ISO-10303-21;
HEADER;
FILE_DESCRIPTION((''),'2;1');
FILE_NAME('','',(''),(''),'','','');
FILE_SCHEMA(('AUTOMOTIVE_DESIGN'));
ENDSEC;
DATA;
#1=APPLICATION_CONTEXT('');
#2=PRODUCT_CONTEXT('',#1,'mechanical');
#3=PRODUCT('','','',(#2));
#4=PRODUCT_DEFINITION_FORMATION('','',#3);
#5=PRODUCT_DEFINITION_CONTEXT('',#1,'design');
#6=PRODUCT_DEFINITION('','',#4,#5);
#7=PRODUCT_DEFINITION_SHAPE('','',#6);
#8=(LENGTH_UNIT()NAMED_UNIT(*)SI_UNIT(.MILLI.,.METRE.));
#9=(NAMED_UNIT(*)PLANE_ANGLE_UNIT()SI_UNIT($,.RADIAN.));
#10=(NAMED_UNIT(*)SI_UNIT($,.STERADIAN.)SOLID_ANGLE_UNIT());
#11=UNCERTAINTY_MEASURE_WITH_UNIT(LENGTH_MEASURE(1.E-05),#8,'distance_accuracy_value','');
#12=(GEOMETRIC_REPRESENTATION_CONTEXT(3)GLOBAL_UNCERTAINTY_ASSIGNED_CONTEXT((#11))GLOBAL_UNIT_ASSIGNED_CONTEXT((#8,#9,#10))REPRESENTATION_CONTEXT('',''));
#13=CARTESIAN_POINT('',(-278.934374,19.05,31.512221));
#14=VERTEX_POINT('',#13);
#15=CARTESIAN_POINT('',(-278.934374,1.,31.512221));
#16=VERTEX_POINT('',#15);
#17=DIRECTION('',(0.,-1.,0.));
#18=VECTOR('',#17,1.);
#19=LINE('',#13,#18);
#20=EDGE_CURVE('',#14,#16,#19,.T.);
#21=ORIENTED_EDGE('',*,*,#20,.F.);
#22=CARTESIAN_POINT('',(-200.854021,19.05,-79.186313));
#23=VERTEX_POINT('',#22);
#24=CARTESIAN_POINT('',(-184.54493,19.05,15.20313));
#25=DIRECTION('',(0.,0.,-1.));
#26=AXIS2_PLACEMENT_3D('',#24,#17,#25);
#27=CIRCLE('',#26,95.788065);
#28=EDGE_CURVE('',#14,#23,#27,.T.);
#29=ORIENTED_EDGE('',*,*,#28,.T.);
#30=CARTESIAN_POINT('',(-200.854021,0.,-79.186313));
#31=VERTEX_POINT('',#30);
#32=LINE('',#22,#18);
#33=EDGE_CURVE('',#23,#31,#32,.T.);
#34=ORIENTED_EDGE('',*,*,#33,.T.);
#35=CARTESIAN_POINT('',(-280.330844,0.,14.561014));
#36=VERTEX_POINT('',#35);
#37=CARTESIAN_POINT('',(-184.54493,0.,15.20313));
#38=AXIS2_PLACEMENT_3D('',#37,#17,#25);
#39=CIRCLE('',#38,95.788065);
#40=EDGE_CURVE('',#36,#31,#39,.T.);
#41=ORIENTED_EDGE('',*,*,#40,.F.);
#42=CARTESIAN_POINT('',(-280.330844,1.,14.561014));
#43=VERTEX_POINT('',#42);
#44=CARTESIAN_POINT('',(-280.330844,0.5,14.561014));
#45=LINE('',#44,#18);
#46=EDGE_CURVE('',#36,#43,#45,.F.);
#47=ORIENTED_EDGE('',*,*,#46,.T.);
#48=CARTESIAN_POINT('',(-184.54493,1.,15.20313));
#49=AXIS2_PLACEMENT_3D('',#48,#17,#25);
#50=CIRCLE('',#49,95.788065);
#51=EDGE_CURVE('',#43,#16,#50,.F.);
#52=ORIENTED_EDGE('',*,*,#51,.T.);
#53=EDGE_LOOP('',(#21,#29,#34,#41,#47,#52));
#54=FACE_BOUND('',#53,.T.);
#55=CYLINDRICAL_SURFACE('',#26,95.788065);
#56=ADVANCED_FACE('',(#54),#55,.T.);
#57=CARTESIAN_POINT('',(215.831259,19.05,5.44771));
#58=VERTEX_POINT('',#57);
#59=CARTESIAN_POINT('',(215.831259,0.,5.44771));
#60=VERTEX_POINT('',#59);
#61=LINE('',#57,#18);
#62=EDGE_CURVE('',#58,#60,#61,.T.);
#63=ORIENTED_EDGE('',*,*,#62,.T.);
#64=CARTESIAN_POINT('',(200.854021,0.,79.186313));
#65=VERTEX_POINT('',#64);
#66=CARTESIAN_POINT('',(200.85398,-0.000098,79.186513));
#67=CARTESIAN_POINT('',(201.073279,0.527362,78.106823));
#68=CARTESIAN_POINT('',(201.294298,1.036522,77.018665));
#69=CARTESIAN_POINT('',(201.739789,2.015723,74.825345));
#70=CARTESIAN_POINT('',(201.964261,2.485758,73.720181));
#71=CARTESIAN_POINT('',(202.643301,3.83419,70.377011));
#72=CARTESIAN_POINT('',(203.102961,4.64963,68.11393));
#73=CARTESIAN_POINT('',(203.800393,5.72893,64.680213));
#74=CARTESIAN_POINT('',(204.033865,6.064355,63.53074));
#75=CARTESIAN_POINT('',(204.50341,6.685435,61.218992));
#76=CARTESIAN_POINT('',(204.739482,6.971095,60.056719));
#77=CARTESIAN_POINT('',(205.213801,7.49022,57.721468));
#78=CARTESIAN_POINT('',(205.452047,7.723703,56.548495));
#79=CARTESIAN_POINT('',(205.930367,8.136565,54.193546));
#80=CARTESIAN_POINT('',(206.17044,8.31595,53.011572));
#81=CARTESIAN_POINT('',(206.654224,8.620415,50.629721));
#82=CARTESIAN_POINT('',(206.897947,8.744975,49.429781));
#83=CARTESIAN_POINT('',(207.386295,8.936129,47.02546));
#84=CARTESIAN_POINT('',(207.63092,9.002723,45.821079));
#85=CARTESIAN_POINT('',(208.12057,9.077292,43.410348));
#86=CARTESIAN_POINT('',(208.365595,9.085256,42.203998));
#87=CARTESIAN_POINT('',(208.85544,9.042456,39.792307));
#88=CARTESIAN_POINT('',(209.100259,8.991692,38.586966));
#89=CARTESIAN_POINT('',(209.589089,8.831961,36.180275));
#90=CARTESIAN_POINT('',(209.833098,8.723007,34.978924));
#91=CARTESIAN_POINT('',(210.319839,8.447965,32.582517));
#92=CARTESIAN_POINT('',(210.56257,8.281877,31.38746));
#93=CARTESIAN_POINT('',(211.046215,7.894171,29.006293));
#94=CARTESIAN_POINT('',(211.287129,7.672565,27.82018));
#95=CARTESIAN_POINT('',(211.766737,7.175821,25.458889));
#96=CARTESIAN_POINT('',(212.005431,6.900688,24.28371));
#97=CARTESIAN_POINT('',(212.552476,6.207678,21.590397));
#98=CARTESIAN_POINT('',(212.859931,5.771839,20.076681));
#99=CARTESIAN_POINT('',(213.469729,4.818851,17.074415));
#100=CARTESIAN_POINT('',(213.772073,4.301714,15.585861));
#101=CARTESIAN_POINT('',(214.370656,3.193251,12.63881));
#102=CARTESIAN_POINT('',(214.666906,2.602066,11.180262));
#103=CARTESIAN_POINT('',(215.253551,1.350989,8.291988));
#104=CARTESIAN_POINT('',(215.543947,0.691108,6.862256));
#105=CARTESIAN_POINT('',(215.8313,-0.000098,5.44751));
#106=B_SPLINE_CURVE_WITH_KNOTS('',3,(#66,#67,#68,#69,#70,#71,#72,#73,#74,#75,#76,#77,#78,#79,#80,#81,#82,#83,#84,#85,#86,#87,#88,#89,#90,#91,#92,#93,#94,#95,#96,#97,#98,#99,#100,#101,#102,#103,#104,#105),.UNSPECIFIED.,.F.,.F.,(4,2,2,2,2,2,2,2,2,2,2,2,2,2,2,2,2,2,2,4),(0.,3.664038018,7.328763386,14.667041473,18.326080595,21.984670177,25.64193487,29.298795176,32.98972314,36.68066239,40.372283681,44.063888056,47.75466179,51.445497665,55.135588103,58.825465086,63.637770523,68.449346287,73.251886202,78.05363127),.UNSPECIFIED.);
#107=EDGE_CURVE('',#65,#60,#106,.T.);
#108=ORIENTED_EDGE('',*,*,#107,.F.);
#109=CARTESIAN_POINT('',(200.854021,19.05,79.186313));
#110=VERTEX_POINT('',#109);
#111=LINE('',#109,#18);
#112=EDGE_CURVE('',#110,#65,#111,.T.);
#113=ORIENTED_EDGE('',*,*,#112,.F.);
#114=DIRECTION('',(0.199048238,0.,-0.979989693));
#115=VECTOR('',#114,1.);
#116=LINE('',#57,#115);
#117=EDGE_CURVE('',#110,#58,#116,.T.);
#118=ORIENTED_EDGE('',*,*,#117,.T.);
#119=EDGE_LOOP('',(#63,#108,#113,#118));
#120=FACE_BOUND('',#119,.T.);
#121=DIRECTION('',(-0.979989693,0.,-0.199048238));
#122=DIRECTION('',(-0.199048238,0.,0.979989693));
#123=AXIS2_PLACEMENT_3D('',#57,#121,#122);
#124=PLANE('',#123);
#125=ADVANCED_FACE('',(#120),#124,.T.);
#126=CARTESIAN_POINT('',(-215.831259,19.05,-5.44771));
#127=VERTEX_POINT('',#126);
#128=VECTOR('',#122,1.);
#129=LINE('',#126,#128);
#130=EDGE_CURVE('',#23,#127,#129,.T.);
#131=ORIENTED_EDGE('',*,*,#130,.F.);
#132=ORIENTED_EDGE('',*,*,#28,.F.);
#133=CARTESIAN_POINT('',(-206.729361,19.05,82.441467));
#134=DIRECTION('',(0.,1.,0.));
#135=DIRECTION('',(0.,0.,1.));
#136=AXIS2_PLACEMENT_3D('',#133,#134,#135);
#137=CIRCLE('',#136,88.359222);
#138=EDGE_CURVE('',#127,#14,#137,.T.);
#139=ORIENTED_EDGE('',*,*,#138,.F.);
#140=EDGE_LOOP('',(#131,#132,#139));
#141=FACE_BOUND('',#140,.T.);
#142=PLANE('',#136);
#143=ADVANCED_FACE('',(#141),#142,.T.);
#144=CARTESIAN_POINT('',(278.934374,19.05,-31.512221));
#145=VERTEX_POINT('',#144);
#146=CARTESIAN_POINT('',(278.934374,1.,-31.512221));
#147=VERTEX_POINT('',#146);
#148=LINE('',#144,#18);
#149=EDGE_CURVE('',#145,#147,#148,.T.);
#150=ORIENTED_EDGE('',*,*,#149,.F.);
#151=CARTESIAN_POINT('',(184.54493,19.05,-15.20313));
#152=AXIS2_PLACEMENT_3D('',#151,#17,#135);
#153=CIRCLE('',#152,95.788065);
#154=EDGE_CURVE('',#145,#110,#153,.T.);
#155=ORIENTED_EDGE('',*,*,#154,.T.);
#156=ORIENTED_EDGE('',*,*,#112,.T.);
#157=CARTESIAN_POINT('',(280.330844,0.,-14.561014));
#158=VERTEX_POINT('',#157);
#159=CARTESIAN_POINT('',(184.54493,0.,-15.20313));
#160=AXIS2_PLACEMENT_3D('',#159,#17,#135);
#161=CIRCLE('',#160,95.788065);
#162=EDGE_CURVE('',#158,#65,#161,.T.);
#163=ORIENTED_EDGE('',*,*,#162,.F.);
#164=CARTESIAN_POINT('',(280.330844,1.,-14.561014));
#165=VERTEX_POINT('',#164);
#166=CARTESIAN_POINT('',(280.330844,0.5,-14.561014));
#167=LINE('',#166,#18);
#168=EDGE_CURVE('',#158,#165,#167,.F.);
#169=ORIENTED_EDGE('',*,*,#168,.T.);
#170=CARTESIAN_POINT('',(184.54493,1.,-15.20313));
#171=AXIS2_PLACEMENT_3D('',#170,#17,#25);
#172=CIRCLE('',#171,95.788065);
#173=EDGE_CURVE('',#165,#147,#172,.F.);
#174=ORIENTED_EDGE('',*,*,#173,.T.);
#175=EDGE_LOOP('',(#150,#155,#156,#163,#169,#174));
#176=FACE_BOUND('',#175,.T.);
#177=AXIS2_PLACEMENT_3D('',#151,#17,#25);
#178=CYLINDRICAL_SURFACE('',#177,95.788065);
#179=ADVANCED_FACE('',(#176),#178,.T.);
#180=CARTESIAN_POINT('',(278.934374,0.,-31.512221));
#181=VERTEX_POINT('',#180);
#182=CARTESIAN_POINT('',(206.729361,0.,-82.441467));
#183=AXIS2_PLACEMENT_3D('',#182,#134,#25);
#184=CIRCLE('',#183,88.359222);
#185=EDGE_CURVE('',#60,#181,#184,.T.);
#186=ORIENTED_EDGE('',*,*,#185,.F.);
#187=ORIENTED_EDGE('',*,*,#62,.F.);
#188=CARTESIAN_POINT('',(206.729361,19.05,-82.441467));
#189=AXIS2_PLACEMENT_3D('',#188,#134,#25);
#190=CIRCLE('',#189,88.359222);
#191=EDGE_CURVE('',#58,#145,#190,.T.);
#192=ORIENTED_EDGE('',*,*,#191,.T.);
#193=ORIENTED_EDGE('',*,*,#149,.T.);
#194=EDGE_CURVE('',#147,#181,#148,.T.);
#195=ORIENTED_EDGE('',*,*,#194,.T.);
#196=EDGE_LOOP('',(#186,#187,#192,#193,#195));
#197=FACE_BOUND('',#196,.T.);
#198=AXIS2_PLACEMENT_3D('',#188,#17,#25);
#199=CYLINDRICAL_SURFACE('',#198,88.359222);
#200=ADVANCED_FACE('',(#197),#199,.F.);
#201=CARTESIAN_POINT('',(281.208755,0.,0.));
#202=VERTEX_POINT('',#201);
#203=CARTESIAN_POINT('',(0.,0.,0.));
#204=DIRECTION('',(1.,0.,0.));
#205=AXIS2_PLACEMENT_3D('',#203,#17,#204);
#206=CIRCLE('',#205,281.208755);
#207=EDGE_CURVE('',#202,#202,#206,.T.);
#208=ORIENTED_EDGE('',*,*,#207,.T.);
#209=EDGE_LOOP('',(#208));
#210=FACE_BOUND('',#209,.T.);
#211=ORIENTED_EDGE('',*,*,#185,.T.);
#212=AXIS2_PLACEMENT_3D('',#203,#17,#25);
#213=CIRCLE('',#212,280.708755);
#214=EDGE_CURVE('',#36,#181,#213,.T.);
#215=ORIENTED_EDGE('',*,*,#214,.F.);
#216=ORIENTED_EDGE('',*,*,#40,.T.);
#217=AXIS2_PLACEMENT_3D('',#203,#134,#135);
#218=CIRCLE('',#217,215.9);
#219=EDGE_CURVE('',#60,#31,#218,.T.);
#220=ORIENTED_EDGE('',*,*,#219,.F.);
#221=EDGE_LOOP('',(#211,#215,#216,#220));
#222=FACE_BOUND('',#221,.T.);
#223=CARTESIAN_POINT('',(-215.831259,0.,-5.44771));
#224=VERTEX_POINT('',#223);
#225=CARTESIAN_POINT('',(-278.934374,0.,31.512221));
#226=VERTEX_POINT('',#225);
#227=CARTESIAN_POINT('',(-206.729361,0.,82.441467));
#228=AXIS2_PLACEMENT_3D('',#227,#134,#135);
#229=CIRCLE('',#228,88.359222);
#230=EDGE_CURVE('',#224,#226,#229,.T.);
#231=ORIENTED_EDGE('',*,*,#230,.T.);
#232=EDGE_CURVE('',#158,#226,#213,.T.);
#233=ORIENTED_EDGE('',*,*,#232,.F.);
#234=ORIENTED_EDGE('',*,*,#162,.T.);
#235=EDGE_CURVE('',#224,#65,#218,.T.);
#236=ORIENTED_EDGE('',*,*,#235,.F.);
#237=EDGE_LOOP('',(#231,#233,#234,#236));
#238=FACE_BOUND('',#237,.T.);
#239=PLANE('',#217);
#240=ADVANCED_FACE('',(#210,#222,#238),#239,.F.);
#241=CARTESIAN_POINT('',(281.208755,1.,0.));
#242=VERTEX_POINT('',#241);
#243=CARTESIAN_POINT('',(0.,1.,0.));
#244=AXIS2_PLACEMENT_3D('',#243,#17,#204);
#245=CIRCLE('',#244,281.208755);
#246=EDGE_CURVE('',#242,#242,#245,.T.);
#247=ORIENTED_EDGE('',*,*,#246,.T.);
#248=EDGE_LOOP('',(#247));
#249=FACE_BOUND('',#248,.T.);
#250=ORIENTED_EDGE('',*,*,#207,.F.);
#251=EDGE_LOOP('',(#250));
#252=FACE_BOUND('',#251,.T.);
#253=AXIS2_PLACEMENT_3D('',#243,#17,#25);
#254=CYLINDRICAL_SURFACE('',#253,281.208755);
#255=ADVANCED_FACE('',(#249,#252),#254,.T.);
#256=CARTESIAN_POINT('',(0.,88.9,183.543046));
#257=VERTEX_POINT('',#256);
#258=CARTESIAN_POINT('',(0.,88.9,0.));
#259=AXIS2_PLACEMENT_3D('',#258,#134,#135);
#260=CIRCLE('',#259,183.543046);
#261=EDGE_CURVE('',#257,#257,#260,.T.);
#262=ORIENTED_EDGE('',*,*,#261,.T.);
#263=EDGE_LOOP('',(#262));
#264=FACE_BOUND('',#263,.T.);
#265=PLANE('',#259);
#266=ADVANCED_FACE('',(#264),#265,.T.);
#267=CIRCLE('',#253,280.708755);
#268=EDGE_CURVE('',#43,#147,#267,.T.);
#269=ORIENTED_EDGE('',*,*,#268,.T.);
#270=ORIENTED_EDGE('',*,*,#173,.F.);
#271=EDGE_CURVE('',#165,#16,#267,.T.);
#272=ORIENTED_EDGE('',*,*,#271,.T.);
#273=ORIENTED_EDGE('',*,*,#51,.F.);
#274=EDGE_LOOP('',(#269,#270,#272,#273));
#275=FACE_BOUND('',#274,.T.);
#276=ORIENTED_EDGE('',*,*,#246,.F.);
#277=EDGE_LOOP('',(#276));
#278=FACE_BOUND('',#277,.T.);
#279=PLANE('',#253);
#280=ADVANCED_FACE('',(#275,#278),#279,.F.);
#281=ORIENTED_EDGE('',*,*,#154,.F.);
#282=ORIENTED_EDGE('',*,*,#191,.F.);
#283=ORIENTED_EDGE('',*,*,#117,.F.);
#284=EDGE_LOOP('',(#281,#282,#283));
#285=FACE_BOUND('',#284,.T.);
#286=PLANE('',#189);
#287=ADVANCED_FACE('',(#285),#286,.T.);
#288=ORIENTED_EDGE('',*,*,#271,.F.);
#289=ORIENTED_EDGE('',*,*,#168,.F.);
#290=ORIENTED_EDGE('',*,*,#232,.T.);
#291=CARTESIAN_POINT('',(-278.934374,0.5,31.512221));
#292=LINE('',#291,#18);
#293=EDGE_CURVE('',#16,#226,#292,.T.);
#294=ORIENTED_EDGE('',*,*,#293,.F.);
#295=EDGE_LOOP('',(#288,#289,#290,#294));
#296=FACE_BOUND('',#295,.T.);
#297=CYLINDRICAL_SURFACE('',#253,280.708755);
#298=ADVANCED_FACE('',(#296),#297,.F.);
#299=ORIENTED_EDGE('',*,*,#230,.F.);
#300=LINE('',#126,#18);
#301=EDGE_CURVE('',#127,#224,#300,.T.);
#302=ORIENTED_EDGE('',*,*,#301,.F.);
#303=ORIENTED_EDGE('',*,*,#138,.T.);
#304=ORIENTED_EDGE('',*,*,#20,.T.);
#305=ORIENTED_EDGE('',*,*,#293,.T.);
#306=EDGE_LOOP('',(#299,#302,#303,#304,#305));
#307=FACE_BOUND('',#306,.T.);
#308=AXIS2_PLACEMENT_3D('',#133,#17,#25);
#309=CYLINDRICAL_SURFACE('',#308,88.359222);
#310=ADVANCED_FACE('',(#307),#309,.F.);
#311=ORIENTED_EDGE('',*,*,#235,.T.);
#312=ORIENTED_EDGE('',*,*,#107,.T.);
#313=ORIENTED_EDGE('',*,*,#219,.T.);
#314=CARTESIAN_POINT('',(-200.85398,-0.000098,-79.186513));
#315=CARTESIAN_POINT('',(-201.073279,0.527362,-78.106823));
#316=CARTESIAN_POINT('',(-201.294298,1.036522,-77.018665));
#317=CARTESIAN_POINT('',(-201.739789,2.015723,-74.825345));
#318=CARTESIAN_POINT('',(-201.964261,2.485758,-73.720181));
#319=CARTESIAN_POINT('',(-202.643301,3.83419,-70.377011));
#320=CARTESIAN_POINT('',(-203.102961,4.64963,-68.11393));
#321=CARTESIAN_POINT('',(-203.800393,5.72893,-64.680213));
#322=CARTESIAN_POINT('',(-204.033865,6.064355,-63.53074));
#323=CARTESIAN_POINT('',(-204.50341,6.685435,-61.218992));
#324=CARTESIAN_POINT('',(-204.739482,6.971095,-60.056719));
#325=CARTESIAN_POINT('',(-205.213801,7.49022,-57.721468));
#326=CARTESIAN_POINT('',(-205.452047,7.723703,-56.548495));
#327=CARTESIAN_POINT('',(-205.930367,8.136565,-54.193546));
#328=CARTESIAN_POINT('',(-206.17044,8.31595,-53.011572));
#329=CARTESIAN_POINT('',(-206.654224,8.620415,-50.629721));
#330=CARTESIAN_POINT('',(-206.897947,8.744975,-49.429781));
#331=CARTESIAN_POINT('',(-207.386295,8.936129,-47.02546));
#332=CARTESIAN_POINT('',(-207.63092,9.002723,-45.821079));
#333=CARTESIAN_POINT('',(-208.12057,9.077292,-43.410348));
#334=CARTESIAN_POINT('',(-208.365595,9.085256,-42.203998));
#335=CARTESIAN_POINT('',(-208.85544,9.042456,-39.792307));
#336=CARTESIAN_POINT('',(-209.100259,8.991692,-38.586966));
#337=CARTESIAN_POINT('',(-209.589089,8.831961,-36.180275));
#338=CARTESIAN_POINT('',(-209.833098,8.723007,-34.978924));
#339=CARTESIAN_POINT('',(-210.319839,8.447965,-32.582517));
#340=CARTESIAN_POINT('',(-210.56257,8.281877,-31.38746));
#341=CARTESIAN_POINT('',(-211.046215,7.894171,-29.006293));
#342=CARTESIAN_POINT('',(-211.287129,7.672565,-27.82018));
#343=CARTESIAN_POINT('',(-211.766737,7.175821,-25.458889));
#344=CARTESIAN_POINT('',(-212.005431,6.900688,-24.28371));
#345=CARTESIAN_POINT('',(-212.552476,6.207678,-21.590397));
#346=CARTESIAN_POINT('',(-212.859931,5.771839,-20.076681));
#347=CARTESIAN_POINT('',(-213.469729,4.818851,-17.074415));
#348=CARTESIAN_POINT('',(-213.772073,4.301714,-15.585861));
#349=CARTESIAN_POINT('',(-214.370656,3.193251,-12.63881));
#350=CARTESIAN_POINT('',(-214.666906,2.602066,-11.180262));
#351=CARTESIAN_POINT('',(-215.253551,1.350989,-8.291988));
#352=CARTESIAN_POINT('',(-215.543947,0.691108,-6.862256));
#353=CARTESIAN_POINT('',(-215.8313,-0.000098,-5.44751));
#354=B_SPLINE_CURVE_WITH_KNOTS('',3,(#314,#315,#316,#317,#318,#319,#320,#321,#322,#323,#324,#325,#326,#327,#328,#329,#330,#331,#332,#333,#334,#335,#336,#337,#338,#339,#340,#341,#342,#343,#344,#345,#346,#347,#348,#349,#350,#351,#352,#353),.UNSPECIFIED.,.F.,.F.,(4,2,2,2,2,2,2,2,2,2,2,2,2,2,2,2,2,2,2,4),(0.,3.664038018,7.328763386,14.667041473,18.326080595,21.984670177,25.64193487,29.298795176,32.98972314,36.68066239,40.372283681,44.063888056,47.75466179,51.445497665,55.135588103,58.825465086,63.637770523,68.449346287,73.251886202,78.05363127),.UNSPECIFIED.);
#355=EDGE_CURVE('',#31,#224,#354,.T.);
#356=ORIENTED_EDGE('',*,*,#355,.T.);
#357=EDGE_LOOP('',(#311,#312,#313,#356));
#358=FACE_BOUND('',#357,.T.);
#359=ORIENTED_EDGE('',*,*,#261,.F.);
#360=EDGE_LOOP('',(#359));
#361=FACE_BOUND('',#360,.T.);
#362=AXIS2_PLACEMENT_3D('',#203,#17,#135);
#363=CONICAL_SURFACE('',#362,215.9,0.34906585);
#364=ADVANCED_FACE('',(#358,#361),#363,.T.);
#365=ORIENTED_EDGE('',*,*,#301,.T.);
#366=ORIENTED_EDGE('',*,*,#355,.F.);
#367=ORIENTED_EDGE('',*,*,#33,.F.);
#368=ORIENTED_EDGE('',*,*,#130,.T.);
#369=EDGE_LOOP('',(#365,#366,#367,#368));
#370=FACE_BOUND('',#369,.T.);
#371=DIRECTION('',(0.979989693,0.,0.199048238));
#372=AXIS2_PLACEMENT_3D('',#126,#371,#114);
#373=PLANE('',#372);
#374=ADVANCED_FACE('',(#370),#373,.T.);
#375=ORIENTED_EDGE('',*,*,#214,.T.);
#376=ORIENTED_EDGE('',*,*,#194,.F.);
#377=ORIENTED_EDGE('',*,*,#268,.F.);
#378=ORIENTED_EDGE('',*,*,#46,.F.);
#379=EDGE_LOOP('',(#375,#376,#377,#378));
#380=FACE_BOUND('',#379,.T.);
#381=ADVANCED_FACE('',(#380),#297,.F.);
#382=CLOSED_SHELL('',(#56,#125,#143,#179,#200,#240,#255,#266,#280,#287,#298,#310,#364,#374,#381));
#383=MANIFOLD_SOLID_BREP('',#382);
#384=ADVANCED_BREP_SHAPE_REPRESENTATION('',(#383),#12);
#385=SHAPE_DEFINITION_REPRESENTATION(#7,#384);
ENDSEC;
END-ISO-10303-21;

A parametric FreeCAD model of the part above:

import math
import FreeCAD as App
import Part
import Sketcher
from FreeCAD import Vector
Q = App.Units.Quantity

doc = App.newDocument("Part")
body = doc.addObject("PartDesign::Body", "Body")

sketch1 = doc.addObject("Sketcher::SketchObject", "Sketch")
body.addObject(sketch1)
sketch1.AttachmentSupport = (doc.XZ_Plane, [""])
sketch1.MapMode = "FlatFace"
sketch1.addGeometry(Part.Circle(Vector(0, 0, 0), Vector(0, 0, 1), 215.9), False)
sketch1.addConstraint(Sketcher.Constraint("Coincident", 0, 3, -1, 1))
sketch1.addConstraint(Sketcher.Constraint("Diameter", 0, Q("17 in")))
pad1 = doc.addObject("PartDesign::Pad", "Pad")
body.addObject(pad1)
pad1.Profile = sketch1
pad1.Length = Q("3.5 in")
pad1.Reversed = True
pad1.TaperAngle = -20

sketch2 = doc.addObject("Sketcher::SketchObject", "Sketch001")
body.addObject(sketch2)
sketch2.AttachmentSupport = (doc.XZ_Plane, [""])
sketch2.MapMode = "FlatFace"
sketch2.addGeometry(Part.LineSegment(Vector(-200.854021, -79.186313, 0), Vector(-215.831259, -5.44771, 0)), False)
sketch2.addGeometry(Part.ArcOfCircle(Part.Circle(Vector(-206.729361, 82.441467, 0), Vector(0, 0, 1), 88.359222), math.radians(-144.803067), math.radians(-95.912536)), False)
sketch2.addGeometry(Part.ArcOfCircle(Part.Circle(Vector(-184.54493, 15.20313, 0), Vector(0, 0, 1), 95.788065), math.radians(170.196933), math.radians(260.196933)), False)
sketch2.addConstraint(Sketcher.Constraint("Coincident", 0, 2, 1, 2))
sketch2.addConstraint(Sketcher.Constraint("Coincident", 1, 1, 2, 1))
sketch2.addConstraint(Sketcher.Constraint("Coincident", 2, 2, 0, 1))
sketch2.addConstraint(Sketcher.Constraint("Radius", 1, Q("88.359222 mm")))
sketch2.addConstraint(Sketcher.Constraint("Radius", 2, Q("95.788065 mm")))
sketch2.addConstraint(Sketcher.Constraint("DistanceX", 0, 2, 1, 3, Q("9.101899 mm")))
sketch2.addConstraint(Sketcher.Constraint("DistanceX", 1, 3, -1, 1, Q("206.729361 mm")))
sketch2.addConstraint(Sketcher.Constraint("DistanceX", 2, 3, -1, 1, Q("184.54493 mm")))
sketch2.addConstraint(Sketcher.Constraint("DistanceY", -1, 1, 2, 3, Q("15.20313 mm")))
sketch2.addConstraint(Sketcher.Constraint("DistanceY", 0, 2, -1, 1, Q("5.44771 mm")))
sketch2.addConstraint(Sketcher.Constraint("DistanceX", 2, 2, -1, 1, Q("200.854021 mm")))
pad2 = doc.addObject("PartDesign::Pad", "Pad001")
body.addObject(pad2)
pad2.Profile = sketch2
pad2.Length = Q("0.75 in")
pad2.Reversed = True
doc.recompute()

polarpattern = doc.addObject("PartDesign::PolarPattern", "PolarPattern")
body.addObject(polarpattern)
polarpattern.Originals = [pad2]
polarpattern.Axis = (doc.Y_Axis, [""])
polarpattern.Angle = 360
polarpattern.Occurrences = 2
body.Tip = polarpattern

sketch3 = doc.addObject("Sketcher::SketchObject", "Sketch002")
body.addObject(sketch3)
sketch3.AttachmentSupport = (doc.XZ_Plane, [""])
sketch3.MapMode = "FlatFace"
sketch3.addGeometry(Part.Circle(Vector(0, 0, 0), Vector(0, 0, 1), 281.208755), False)
sketch3.addGeometry(Part.Circle(Vector(0, 0, 0), Vector(0, 0, 1), 280.708755), False)
sketch3.addConstraint(Sketcher.Constraint("Coincident", 0, 3, -1, 1))
sketch3.addConstraint(Sketcher.Constraint("Coincident", 1, 3, -1, 1))
sketch3.addConstraint(Sketcher.Constraint("Diameter", 0, Q("562.41751 mm")))
sketch3.addConstraint(Sketcher.Constraint("Diameter", 1, Q("561.41751 mm")))
pad3 = doc.addObject("PartDesign::Pad", "Pad002")
body.addObject(pad3)
pad3.Profile = sketch3
pad3.Length = 1
pad3.Reversed = True

doc.recompute()
